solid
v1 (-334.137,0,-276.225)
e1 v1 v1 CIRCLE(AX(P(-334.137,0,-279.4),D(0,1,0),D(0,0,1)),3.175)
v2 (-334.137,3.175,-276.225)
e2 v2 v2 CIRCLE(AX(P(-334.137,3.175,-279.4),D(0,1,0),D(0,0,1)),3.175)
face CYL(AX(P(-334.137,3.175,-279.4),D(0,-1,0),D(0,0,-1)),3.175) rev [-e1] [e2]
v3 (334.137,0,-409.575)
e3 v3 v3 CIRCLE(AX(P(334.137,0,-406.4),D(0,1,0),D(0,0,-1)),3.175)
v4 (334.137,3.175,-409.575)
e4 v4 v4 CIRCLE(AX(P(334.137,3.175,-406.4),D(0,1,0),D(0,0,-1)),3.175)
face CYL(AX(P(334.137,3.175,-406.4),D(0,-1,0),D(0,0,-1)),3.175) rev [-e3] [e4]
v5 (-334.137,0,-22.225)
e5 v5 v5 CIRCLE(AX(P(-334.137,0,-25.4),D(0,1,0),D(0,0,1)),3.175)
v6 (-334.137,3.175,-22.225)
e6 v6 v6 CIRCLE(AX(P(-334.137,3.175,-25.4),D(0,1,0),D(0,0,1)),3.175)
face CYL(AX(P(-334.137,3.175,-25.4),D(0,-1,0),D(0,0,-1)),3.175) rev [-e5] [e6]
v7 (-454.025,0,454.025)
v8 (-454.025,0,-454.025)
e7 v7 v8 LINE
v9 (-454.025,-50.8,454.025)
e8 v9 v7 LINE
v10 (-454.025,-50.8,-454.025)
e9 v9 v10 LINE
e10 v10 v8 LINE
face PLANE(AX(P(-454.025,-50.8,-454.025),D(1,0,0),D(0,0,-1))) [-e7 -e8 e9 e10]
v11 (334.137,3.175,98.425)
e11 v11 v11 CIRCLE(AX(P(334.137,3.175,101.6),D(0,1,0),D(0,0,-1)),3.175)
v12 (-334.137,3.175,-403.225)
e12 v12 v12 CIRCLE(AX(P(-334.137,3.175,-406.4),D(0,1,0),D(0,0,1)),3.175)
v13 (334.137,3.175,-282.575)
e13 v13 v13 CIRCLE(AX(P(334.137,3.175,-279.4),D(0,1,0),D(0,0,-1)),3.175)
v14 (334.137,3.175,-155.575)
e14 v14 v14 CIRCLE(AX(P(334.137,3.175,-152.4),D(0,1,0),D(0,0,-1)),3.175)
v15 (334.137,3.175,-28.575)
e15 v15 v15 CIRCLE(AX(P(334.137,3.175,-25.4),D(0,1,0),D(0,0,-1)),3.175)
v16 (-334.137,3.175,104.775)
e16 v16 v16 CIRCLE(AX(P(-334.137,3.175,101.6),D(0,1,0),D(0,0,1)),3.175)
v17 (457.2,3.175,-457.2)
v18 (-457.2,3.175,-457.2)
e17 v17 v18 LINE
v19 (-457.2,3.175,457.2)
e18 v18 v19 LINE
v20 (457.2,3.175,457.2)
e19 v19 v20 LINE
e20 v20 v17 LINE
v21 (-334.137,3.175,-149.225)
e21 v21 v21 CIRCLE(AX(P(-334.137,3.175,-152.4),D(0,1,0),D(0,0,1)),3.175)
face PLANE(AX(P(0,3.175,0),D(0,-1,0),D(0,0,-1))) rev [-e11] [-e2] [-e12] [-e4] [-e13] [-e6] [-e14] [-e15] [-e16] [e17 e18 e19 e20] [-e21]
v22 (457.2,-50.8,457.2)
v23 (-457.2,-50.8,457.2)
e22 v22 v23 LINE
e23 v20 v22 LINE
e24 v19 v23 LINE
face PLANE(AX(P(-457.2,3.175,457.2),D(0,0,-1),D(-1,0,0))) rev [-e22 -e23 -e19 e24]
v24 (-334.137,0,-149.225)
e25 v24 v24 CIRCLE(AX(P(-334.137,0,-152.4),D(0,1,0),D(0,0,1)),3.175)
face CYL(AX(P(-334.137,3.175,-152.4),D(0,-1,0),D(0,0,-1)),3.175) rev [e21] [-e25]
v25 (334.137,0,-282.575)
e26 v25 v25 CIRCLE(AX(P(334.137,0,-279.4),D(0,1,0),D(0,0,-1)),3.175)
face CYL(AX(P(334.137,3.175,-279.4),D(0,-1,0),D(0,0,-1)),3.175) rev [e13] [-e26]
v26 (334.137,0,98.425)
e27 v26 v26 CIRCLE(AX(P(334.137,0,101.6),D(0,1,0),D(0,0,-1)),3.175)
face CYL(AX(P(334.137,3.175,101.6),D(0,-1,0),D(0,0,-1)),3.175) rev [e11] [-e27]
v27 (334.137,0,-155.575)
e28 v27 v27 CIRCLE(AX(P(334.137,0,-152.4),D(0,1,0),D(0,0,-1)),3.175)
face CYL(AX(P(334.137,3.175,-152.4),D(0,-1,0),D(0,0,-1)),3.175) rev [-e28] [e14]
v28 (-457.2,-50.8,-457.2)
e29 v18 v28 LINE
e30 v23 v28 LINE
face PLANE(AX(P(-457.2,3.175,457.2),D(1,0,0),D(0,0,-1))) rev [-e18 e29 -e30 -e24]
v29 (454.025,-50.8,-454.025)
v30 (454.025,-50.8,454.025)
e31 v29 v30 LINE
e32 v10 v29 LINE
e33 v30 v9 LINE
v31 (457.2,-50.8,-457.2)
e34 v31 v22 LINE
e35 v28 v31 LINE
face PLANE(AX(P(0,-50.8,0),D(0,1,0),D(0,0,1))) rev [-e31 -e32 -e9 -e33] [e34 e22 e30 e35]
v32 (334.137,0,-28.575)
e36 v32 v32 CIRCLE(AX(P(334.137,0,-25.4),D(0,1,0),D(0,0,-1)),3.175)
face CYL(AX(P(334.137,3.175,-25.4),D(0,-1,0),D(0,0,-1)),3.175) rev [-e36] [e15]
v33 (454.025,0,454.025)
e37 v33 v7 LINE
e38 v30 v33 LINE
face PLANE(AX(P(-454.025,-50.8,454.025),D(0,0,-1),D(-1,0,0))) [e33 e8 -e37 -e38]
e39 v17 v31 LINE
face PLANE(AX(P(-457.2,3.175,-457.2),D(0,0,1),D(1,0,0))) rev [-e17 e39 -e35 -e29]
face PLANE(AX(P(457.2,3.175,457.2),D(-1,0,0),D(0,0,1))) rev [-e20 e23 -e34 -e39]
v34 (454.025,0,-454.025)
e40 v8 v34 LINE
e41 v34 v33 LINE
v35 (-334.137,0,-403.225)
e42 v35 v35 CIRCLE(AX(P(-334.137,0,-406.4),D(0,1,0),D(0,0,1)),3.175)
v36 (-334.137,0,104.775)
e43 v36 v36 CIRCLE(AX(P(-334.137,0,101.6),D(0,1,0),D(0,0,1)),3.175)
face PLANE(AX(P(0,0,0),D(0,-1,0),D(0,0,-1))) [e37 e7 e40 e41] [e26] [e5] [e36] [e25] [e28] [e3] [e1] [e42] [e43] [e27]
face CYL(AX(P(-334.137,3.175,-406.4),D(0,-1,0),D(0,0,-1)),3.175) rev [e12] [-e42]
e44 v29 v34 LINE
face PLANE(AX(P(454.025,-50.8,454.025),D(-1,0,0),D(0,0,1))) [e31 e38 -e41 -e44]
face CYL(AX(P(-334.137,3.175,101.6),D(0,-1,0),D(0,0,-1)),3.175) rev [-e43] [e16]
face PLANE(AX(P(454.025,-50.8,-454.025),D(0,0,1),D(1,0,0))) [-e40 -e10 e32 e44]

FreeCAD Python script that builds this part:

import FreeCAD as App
import Part
import Sketcher

V = App.Vector
Q = App.Units.Quantity

doc = App.newDocument("Part")
body = doc.addObject("PartDesign::Body", "Body")

sketch1 = body.newObject("Sketcher::SketchObject", "Sketch")
sketch1.AttachmentSupport = (doc.getObject("XZ_Plane"), [""])
sketch1.MapMode = "FlatFace"
sketch1.addGeometry([
    Part.LineSegment(V(-457.2, -457.2, 0), V(-457.2, 457.2, 0)),
    Part.LineSegment(V(-457.2, 457.2, 0), V(457.2, 457.2, 0)),
    Part.LineSegment(V(457.2, 457.2, 0), V(457.2, -457.2, 0)),
    Part.LineSegment(V(457.2, -457.2, 0), V(-457.2, -457.2, 0)),
    Part.Circle(V(-334.137, 101.6, 0), V(0, 0, 1), 3.175),
    Part.Circle(V(-334.137, -25.4, 0), V(0, 0, 1), 3.175),
    Part.Circle(V(334.137, 101.6, 0), V(0, 0, 1), 3.175),
    Part.Circle(V(334.137, -25.4, 0), V(0, 0, 1), 3.175),
    Part.Circle(V(-334.137, -152.4, 0), V(0, 0, 1), 3.175),
    Part.Circle(V(-334.137, -279.4, 0), V(0, 0, 1), 3.175),
    Part.Circle(V(-334.137, -406.4, 0), V(0, 0, 1), 3.175),
    Part.Circle(V(334.137, -152.4, 0), V(0, 0, 1), 3.175),
    Part.Circle(V(334.137, -279.4, 0), V(0, 0, 1), 3.175),
    Part.Circle(V(334.137, -406.4, 0), V(0, 0, 1), 3.175),
], False)
sketch1.addConstraint([
    Sketcher.Constraint("Coincident", 0, 2, 1, 1),
    Sketcher.Constraint("Coincident", 1, 2, 2, 1),
    Sketcher.Constraint("Coincident", 2, 2, 3, 1),
    Sketcher.Constraint("Coincident", 3, 2, 0, 1),
    Sketcher.Constraint("Vertical", 0),
    Sketcher.Constraint("Horizontal", 1),
    Sketcher.Constraint("Vertical", 2),
    Sketcher.Constraint("Horizontal", 3),
    Sketcher.Constraint("Equal", 4, 5),
    Sketcher.Constraint("Equal", 5, 6),
    Sketcher.Constraint("Equal", 6, 7),
    Sketcher.Constraint("Equal", 7, 8),
    Sketcher.Constraint("Equal", 8, 9),
    Sketcher.Constraint("Equal", 9, 10),
    Sketcher.Constraint("Equal", 10, 11),
    Sketcher.Constraint("Equal", 11, 12),
    Sketcher.Constraint("Equal", 12, 13),
    Sketcher.Constraint("Symmetric", 0, 2, 2, 2, -1, 1),
    Sketcher.Constraint("Symmetric", 4, 3, 6, 3, -2),
    Sketcher.Constraint("Symmetric", 5, 3, 7, 3, -2),
    Sketcher.Constraint("Symmetric", 8, 3, 11, 3, -2),
    Sketcher.Constraint("Symmetric", 9, 3, 12, 3, -2),
    Sketcher.Constraint("Symmetric", 10, 3, 13, 3, -2),
    Sketcher.Constraint("Vertical", 4, 3, 5, 3),
    Sketcher.Constraint("Vertical", 5, 3, 8, 3),
    Sketcher.Constraint("Vertical", 8, 3, 9, 3),
    Sketcher.Constraint("Vertical", 9, 3, 10, 3),
    Sketcher.Constraint("Equal", 3, 0),
    Sketcher.Constraint("Diameter", 4, Q("0.25 in")),
    Sketcher.Constraint("DistanceX", 1, 1, 1, 2, Q("36 in")),
    Sketcher.Constraint("DistanceY", -1, 1, 4, 3, Q("4 in")),
    Sketcher.Constraint("DistanceY", 5, 3, -1, 1, Q("1 in")),
    Sketcher.Constraint("DistanceY", 8, 3, -1, 1, Q("6 in")),
    Sketcher.Constraint("DistanceY", 9, 3, -1, 1, Q("11 in")),
    Sketcher.Constraint("DistanceY", 10, 3, -1, 1, Q("16 in")),
    Sketcher.Constraint("DistanceX", 4, 3, 6, 3, Q("26.31 in")),
])
pad1 = body.newObject("PartDesign::Pad", "Pad")
pad1.Profile = sketch1
pad1.Length = Q("0.125 in")
pad1.Reversed = True

sketch2 = body.newObject("Sketcher::SketchObject", "Sketch001")
sketch2.AttachmentSupport = (doc.getObject("XZ_Plane"), [""])
sketch2.MapMode = "FlatFace"
sketch2.addGeometry([
    Part.LineSegment(V(-457.2, 457.2, 0), V(-457.2, -457.2, 0)),
    Part.LineSegment(V(-457.2, -457.2, 0), V(457.2, -457.2, 0)),
    Part.LineSegment(V(457.2, -457.2, 0), V(457.2, 457.2, 0)),
    Part.LineSegment(V(457.2, 457.2, 0), V(-457.2, 457.2, 0)),
    Part.LineSegment(V(454.025, -454.025, 0), V(-454.025, -454.025, 0)),
    Part.LineSegment(V(-454.025, -454.025, 0), V(-454.025, 454.025, 0)),
    Part.LineSegment(V(-454.025, 454.025, 0), V(454.025, 454.025, 0)),
    Part.LineSegment(V(454.025, 454.025, 0), V(454.025, -454.025, 0)),
], False)
sketch2.addConstraint([
    Sketcher.Constraint("Coincident", 0, 2, 1, 1),
    Sketcher.Constraint("Coincident", 1, 2, 2, 1),
    Sketcher.Constraint("Coincident", 2, 2, 3, 1),
    Sketcher.Constraint("Coincident", 3, 2, 0, 1),
    Sketcher.Constraint("Coincident", 4, 2, 5, 1),
    Sketcher.Constraint("Coincident", 5, 2, 6, 1),
    Sketcher.Constraint("Coincident", 6, 2, 7, 1),
    Sketcher.Constraint("Coincident", 7, 2, 4, 1),
    Sketcher.Constraint("Vertical", 0),
    Sketcher.Constraint("Horizontal", 1),
    Sketcher.Constraint("Vertical", 2),
    Sketcher.Constraint("Horizontal", 3),
    Sketcher.Constraint("Horizontal", 4),
    Sketcher.Constraint("Vertical", 5),
    Sketcher.Constraint("Horizontal", 6),
    Sketcher.Constraint("Vertical", 7),
    Sketcher.Constraint("Symmetric", 0, 2, 2, 2, -1, 1),
    Sketcher.Constraint("Symmetric", 4, 2, 6, 2, -1, 1),
    Sketcher.Constraint("Equal", 3, 0),
    Sketcher.Constraint("Equal", 6, 5),
    Sketcher.Constraint("DistanceX", 1, 1, 1, 2, Q("36 in")),
    Sketcher.Constraint("DistanceX", 4, 2, 4, 1, Q("35.75 in")),
])
pad2 = body.newObject("PartDesign::Pad", "Pad001")
pad2.Profile = sketch2
pad2.Length = Q("2 in")

doc.recompute()
